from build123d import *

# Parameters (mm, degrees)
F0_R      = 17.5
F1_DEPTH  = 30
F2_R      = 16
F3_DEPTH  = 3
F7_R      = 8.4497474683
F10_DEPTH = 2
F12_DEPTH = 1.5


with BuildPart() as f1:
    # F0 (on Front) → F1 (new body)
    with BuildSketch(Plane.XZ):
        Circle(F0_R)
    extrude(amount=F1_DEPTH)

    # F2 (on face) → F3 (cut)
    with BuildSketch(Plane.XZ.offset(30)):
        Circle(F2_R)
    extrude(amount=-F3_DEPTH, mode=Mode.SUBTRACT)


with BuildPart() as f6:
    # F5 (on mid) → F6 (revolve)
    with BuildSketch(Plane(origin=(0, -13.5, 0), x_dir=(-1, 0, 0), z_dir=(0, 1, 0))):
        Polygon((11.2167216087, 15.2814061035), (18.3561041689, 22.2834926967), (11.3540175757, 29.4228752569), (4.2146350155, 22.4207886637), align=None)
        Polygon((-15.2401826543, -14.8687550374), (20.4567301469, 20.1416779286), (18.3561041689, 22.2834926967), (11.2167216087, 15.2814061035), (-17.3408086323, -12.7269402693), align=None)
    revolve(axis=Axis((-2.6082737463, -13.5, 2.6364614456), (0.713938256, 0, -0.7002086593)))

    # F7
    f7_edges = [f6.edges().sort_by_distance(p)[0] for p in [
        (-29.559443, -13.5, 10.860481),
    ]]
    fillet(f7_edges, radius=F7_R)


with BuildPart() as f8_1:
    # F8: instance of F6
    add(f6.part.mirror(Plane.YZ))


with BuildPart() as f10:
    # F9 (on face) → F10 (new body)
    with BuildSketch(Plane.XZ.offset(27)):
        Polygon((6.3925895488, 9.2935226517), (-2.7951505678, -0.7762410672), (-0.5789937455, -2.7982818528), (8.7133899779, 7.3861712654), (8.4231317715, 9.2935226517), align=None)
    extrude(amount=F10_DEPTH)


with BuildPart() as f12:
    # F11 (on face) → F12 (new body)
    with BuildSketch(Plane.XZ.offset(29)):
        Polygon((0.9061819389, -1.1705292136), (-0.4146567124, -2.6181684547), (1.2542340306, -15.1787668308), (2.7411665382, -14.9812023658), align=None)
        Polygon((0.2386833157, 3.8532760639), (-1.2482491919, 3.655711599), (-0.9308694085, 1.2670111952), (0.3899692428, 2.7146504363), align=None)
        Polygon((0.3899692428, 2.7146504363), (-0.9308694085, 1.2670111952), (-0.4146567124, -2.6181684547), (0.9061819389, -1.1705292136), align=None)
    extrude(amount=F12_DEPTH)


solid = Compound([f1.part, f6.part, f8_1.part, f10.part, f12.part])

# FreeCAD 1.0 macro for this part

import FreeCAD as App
import Part
import Sketcher

V = App.Vector


def edges_at(feature, points):
    """Names of the edges that pass closest to the given points."""
    edges = feature.Shape.Edges
    near = lambda p: min(range(len(edges)), key=lambda i: edges[i].distToShape(Part.Vertex(*p))[0])
    return sorted({f"Edge{near(p) + 1}" for p in points})

doc = App.newDocument("Part")
params = doc.addObject("Spreadsheet::Sheet", "Params")
for row, (alias, value) in enumerate([
    ("sketch1_diameter", "35 mm"),
    ("pad1_length", "30 mm"),
    ("sketch2_diameter", "32 mm"),
    ("pocket1_length", "3 mm"),
    ("sketch3_length", "10 mm"),
    ("sketch3_length2", "40 mm"),
    ("sketch3_length3", "3 mm"),
    ("revolution_angle", "360 deg"),
    ("fillet_radius", "8.449747 mm"),
    ("sketch4_length", "3 mm"),
    ("pad2_length", "2 mm"),
    ("sketch5_length", "1.5 mm"),
    ("pad3_length", "1.5 mm"),
], start=1):
    params.set(f"A{row}", alias)
    params.set(f"B{row}", "=" + value)
    params.setAlias(f"B{row}", alias)

body = doc.addObject("PartDesign::Body", "Body")

sketch1 = body.newObject("Sketcher::SketchObject", "Sketch")
sketch1.AttachmentSupport = (doc.getObject("XZ_Plane"), [""])
sketch1.MapMode = "FlatFace"
sketch1.addGeometry(Part.Circle(V(0, 0, 0), V(0, 0, 1), 17.5), False)
sketch1.addConstraint(Sketcher.Constraint("Coincident", 0, 3, -1, 1))
sketch1.addConstraint(Sketcher.Constraint("Diameter", 0, 35.0))
sketch1.setExpression("Constraints[1]", "Params.sketch1_diameter")
pad1 = body.newObject("PartDesign::Pad", "Pad")
pad1.Profile = sketch1
pad1.setExpression("Length", "Params.pad1_length")

sketch2 = body.newObject("Sketcher::SketchObject", "Sketch001")
sketch2.AttachmentSupport = (doc.getObject("XZ_Plane"), [""])
sketch2.MapMode = "FlatFace"
sketch2.AttachmentOffset = App.Placement(V(0, 0, 30), App.Rotation())
sketch2.addGeometry(Part.Circle(V(0, 0, 0), V(0, 0, 1), 16), False)
sketch2.addConstraint(Sketcher.Constraint("Coincident", 0, 3, -1, 1))
sketch2.addConstraint(Sketcher.Constraint("Diameter", 0, 32.0))
sketch2.setExpression("Constraints[1]", "Params.sketch2_diameter")
pocket1 = body.newObject("PartDesign::Pocket", "Pocket")
pocket1.Profile = sketch2
pocket1.setExpression("Length", "Params.pocket1_length")
body2 = doc.addObject("PartDesign::Body", "Body001")

sketch3 = body2.newObject("Sketcher::SketchObject", "Sketch002")
sketch3.AttachmentSupport = (doc.getObject("XZ_Plane001"), [""])
sketch3.MapMode = "FlatFace"
sketch3.AttachmentOffset = App.Placement(V(0, 0, 13.5), App.Rotation())
sketch3.addGeometry(Part.LineSegment(V(-11.354018, 29.422875, 0), V(-4.214635, 22.420789, 0)), False)
sketch3.addGeometry(Part.LineSegment(V(-4.214635, 22.420789, 0), V(-11.216722, 15.281406, 0)), False)
sketch3.addGeometry(Part.LineSegment(V(-11.216722, 15.281406, 0), V(17.340809, -12.72694, 0)), False)
sketch3.addGeometry(Part.LineSegment(V(17.340809, -12.72694, 0), V(15.240183, -14.868755, 0)), False)
sketch3.addGeometry(Part.LineSegment(V(15.240183, -14.868755, 0), V(-20.45673, 20.141678, 0)), False)
sketch3.addGeometry(Part.LineSegment(V(-20.45673, 20.141678, 0), V(-11.354018, 29.422875, 0)), False)
sketch3.addGeometry(Part.LineSegment(V(-20.45673, 20.141678, 0), V(15.240183, -14.868755, 0)), True)
sketch3.addConstraint(Sketcher.Constraint("Coincident", 0, 2, 1, 1))
sketch3.addConstraint(Sketcher.Constraint("Coincident", 1, 2, 2, 1))
sketch3.addConstraint(Sketcher.Constraint("Coincident", 2, 2, 3, 1))
sketch3.addConstraint(Sketcher.Constraint("Coincident", 3, 2, 4, 1))
sketch3.addConstraint(Sketcher.Constraint("Coincident", 4, 2, 5, 1))
sketch3.addConstraint(Sketcher.Constraint("Coincident", 5, 2, 0, 1))
sketch3.addConstraint(Sketcher.Constraint("Coincident", 6, 1, 4, 2))
sketch3.addConstraint(Sketcher.Constraint("Coincident", 6, 2, 3, 2))
sketch3.addConstraint(Sketcher.Constraint("Perpendicular", 0, 1))
sketch3.addConstraint(Sketcher.Constraint("Perpendicular", 1, 2))
sketch3.addConstraint(Sketcher.Constraint("Perpendicular", 2, 3))
sketch3.addConstraint(Sketcher.Constraint("Perpendicular", 3, 4))
sketch3.addConstraint(Sketcher.Constraint("Perpendicular", 4, 5))
sketch3.addConstraint(Sketcher.Constraint("Equal", 0, 1))
sketch3.addConstraint(Sketcher.Constraint("Distance", 0, 10.0))
sketch3.addConstraint(Sketcher.Constraint("Distance", 2, 40.0))
sketch3.addConstraint(Sketcher.Constraint("Distance", 3, 3.0))
sketch3.addConstraint(Sketcher.Constraint("DistanceX", 5, 2, 3, 2, 26.5942))
sketch3.addConstraint(Sketcher.Constraint("DistanceY", -1, 1, 0, 2, 22.420789))
sketch3.addConstraint(Sketcher.Constraint("DistanceX", 1, 2, -1, 1, 11.216722))
sketch3.setExpression("Constraints[14]", "Params.sketch3_length")
sketch3.setExpression("Constraints[15]", "Params.sketch3_length2")
sketch3.setExpression("Constraints[16]", "Params.sketch3_length3")
revolution = body2.newObject("PartDesign::Revolution", "Revolution")
revolution.Profile = sketch3
revolution.ReferenceAxis = (sketch3, ["Axis0"])
revolution.setExpression("Angle", "Params.revolution_angle")
doc.recompute()

fillet = body2.newObject("PartDesign::Fillet", "Fillet")
fillet.Base = (revolution, edges_at(revolution, [(-29.559, -13.5, 10.86)]))
fillet.setExpression("Radius", "Params.fillet_radius")
body3 = doc.addObject("PartDesign::Body", "Body002")
doc.recompute()

mirroring = doc.addObject("Part::Mirroring", "Mirroring")
mirroring.Source = body2
mirroring.Base = V(0, 0, 0)
mirroring.Normal = V(1, 0, 0)
body3.BaseFeature = mirroring
doc.recompute()
body4 = doc.addObject("PartDesign::Body", "Body003")

sketch4 = body4.newObject("Sketcher::SketchObject", "Sketch003")
sketch4.AttachmentSupport = (doc.getObject("XZ_Plane003"), [""])
sketch4.MapMode = "FlatFace"
sketch4.AttachmentOffset = App.Placement(V(0, 0, 27), App.Rotation())
sketch4.addGeometry(Part.LineSegment(V(6.39259, 9.293523, 0), V(-2.795151, -0.776241, 0)), False)
sketch4.addGeometry(Part.LineSegment(V(-2.795151, -0.776241, 0), V(-0.578994, -2.798282, 0)), False)
sketch4.addGeometry(Part.LineSegment(V(-0.578994, -2.798282, 0), V(8.71339, 7.386171, 0)), False)
sketch4.addGeometry(Part.LineSegment(V(8.71339, 7.386171, 0), V(8.423132, 9.293523, 0)), False)
sketch4.addGeometry(Part.LineSegment(V(8.423132, 9.293523, 0), V(6.39259, 9.293523, 0)), False)
sketch4.addConstraint(Sketcher.Constraint("Coincident", 0, 2, 1, 1))
sketch4.addConstraint(Sketcher.Constraint("Coincident", 1, 2, 2, 1))
sketch4.addConstraint(Sketcher.Constraint("Coincident", 2, 2, 3, 1))
sketch4.addConstraint(Sketcher.Constraint("Coincident", 3, 2, 4, 1))
sketch4.addConstraint(Sketcher.Constraint("Coincident", 4, 2, 0, 1))
sketch4.addConstraint(Sketcher.Constraint("Horizontal", 4))
sketch4.addConstraint(Sketcher.Constraint("Perpendicular", 0, 1))
sketch4.addConstraint(Sketcher.Constraint("Perpendicular", 1, 2))
sketch4.addConstraint(Sketcher.Constraint("Distance", 1, 3.0))
sketch4.addConstraint(Sketcher.Constraint("DistanceX", 4, 2, 2, 2, 2.3208))
sketch4.addConstraint(Sketcher.Constraint("Distance", 2, 13.786641))
sketch4.addConstraint(Sketcher.Constraint("Distance", 3, 1.929311))
sketch4.addConstraint(Sketcher.Constraint("DistanceX", 4, 2, 4, 1, 2.030542))
sketch4.addConstraint(Sketcher.Constraint("DistanceX", 0, 2, -1, 1, 2.795151))
sketch4.addConstraint(Sketcher.Constraint("DistanceY", 0, 2, -1, 1, 0.776241))
sketch4.setExpression("Constraints[8]", "Params.sketch4_length")
pad2 = body4.newObject("PartDesign::Pad", "Pad001")
pad2.Profile = sketch4
pad2.setExpression("Length", "Params.pad2_length")
body5 = doc.addObject("PartDesign::Body", "Body004")

sketch5 = body5.newObject("Sketcher::SketchObject", "Sketch004")
sketch5.AttachmentSupport = (doc.getObject("XZ_Plane004"), [""])
sketch5.MapMode = "FlatFace"
sketch5.AttachmentOffset = App.Placement(V(0, 0, 29), App.Rotation())
sketch5.addGeometry(Part.LineSegment(V(-0.414657, -2.618168, 0), V(1.254234, -15.178767, 0)), False)
sketch5.addGeometry(Part.LineSegment(V(1.254234, -15.178767, 0), V(2.741167, -14.981202, 0)), False)
sketch5.addGeometry(Part.LineSegment(V(2.741167, -14.981202, 0), V(0.906182, -1.170529, 0)), False)
sketch5.addGeometry(Part.LineSegment(V(0.906182, -1.170529, 0), V(0.389969, 2.71465, 0)), False)
sketch5.addGeometry(Part.LineSegment(V(0.389969, 2.71465, 0), V(0.238683, 3.853276, 0)), False)
sketch5.addGeometry(Part.LineSegment(V(0.238683, 3.853276, 0), V(-1.248249, 3.655712, 0)), False)
sketch5.addGeometry(Part.LineSegment(V(-1.248249, 3.655712, 0), V(-0.930869, 1.267011, 0)), False)
sketch5.addGeometry(Part.LineSegment(V(-0.930869, 1.267011, 0), V(-0.414657, -2.618168, 0)), False)
sketch5.addConstraint(Sketcher.Constraint("Coincident", 0, 2, 1, 1))
sketch5.addConstraint(Sketcher.Constraint("Coincident", 1, 2, 2, 1))
sketch5.addConstraint(Sketcher.Constraint("Coincident", 2, 2, 3, 1))
sketch5.addConstraint(Sketcher.Constraint("Coincident", 3, 2, 4, 1))
sketch5.addConstraint(Sketcher.Constraint("Coincident", 4, 2, 5, 1))
sketch5.addConstraint(Sketcher.Constraint("Coincident", 5, 2, 6, 1))
sketch5.addConstraint(Sketcher.Constraint("Coincident", 6, 2, 7, 1))
sketch5.addConstraint(Sketcher.Constraint("Coincident", 7, 2, 0, 1))
sketch5.addConstraint(Sketcher.Constraint("Perpendicular", 0, 1))
sketch5.addConstraint(Sketcher.Constraint("Perpendicular", 1, 2))
sketch5.addConstraint(Sketcher.Constraint("Parallel", 2, 3))
sketch5.addConstraint(Sketcher.Constraint("Parallel", 3, 4))
sketch5.addConstraint(Sketcher.Constraint("Perpendicular", 4, 5))
sketch5.addConstraint(Sketcher.Constraint("Perpendicular", 5, 6))
sketch5.addConstraint(Sketcher.Constraint("Parallel", 6, 7))
sketch5.addConstraint(Sketcher.Constraint("Equal", 3, 7))
sketch5.addConstraint(Sketcher.Constraint("Distance", 1, 1.5))
sketch5.addConstraint(Sketcher.Constraint("DistanceX", 4, 2, 2, 2, 0.667499))
sketch5.addConstraint(Sketcher.Constraint("DistanceY", 6, 2, 5, 2, 2.3887))
sketch5.addConstraint(Sketcher.Constraint("DistanceX", -1, 1, 2, 2, 0.906182))
sketch5.addConstraint(Sketcher.Constraint("DistanceY", 2, 2, -1, 1, 1.170529))
sketch5.addConstraint(Sketcher.Constraint("DistanceX", -1, 1, 3, 2, 0.389969))
sketch5.addConstraint(Sketcher.Constraint("DistanceY", -1, 1, 3, 2, 2.71465))
sketch5.addConstraint(Sketcher.Constraint("DistanceY", 1, 2, 4, 2, 18.834478))
sketch5.setExpression("Constraints[16]", "Params.sketch5_length")
pad3 = body5.newObject("PartDesign::Pad", "Pad002")
pad3.Profile = sketch5
pad3.setExpression("Length", "Params.pad3_length")

doc.recompute()
